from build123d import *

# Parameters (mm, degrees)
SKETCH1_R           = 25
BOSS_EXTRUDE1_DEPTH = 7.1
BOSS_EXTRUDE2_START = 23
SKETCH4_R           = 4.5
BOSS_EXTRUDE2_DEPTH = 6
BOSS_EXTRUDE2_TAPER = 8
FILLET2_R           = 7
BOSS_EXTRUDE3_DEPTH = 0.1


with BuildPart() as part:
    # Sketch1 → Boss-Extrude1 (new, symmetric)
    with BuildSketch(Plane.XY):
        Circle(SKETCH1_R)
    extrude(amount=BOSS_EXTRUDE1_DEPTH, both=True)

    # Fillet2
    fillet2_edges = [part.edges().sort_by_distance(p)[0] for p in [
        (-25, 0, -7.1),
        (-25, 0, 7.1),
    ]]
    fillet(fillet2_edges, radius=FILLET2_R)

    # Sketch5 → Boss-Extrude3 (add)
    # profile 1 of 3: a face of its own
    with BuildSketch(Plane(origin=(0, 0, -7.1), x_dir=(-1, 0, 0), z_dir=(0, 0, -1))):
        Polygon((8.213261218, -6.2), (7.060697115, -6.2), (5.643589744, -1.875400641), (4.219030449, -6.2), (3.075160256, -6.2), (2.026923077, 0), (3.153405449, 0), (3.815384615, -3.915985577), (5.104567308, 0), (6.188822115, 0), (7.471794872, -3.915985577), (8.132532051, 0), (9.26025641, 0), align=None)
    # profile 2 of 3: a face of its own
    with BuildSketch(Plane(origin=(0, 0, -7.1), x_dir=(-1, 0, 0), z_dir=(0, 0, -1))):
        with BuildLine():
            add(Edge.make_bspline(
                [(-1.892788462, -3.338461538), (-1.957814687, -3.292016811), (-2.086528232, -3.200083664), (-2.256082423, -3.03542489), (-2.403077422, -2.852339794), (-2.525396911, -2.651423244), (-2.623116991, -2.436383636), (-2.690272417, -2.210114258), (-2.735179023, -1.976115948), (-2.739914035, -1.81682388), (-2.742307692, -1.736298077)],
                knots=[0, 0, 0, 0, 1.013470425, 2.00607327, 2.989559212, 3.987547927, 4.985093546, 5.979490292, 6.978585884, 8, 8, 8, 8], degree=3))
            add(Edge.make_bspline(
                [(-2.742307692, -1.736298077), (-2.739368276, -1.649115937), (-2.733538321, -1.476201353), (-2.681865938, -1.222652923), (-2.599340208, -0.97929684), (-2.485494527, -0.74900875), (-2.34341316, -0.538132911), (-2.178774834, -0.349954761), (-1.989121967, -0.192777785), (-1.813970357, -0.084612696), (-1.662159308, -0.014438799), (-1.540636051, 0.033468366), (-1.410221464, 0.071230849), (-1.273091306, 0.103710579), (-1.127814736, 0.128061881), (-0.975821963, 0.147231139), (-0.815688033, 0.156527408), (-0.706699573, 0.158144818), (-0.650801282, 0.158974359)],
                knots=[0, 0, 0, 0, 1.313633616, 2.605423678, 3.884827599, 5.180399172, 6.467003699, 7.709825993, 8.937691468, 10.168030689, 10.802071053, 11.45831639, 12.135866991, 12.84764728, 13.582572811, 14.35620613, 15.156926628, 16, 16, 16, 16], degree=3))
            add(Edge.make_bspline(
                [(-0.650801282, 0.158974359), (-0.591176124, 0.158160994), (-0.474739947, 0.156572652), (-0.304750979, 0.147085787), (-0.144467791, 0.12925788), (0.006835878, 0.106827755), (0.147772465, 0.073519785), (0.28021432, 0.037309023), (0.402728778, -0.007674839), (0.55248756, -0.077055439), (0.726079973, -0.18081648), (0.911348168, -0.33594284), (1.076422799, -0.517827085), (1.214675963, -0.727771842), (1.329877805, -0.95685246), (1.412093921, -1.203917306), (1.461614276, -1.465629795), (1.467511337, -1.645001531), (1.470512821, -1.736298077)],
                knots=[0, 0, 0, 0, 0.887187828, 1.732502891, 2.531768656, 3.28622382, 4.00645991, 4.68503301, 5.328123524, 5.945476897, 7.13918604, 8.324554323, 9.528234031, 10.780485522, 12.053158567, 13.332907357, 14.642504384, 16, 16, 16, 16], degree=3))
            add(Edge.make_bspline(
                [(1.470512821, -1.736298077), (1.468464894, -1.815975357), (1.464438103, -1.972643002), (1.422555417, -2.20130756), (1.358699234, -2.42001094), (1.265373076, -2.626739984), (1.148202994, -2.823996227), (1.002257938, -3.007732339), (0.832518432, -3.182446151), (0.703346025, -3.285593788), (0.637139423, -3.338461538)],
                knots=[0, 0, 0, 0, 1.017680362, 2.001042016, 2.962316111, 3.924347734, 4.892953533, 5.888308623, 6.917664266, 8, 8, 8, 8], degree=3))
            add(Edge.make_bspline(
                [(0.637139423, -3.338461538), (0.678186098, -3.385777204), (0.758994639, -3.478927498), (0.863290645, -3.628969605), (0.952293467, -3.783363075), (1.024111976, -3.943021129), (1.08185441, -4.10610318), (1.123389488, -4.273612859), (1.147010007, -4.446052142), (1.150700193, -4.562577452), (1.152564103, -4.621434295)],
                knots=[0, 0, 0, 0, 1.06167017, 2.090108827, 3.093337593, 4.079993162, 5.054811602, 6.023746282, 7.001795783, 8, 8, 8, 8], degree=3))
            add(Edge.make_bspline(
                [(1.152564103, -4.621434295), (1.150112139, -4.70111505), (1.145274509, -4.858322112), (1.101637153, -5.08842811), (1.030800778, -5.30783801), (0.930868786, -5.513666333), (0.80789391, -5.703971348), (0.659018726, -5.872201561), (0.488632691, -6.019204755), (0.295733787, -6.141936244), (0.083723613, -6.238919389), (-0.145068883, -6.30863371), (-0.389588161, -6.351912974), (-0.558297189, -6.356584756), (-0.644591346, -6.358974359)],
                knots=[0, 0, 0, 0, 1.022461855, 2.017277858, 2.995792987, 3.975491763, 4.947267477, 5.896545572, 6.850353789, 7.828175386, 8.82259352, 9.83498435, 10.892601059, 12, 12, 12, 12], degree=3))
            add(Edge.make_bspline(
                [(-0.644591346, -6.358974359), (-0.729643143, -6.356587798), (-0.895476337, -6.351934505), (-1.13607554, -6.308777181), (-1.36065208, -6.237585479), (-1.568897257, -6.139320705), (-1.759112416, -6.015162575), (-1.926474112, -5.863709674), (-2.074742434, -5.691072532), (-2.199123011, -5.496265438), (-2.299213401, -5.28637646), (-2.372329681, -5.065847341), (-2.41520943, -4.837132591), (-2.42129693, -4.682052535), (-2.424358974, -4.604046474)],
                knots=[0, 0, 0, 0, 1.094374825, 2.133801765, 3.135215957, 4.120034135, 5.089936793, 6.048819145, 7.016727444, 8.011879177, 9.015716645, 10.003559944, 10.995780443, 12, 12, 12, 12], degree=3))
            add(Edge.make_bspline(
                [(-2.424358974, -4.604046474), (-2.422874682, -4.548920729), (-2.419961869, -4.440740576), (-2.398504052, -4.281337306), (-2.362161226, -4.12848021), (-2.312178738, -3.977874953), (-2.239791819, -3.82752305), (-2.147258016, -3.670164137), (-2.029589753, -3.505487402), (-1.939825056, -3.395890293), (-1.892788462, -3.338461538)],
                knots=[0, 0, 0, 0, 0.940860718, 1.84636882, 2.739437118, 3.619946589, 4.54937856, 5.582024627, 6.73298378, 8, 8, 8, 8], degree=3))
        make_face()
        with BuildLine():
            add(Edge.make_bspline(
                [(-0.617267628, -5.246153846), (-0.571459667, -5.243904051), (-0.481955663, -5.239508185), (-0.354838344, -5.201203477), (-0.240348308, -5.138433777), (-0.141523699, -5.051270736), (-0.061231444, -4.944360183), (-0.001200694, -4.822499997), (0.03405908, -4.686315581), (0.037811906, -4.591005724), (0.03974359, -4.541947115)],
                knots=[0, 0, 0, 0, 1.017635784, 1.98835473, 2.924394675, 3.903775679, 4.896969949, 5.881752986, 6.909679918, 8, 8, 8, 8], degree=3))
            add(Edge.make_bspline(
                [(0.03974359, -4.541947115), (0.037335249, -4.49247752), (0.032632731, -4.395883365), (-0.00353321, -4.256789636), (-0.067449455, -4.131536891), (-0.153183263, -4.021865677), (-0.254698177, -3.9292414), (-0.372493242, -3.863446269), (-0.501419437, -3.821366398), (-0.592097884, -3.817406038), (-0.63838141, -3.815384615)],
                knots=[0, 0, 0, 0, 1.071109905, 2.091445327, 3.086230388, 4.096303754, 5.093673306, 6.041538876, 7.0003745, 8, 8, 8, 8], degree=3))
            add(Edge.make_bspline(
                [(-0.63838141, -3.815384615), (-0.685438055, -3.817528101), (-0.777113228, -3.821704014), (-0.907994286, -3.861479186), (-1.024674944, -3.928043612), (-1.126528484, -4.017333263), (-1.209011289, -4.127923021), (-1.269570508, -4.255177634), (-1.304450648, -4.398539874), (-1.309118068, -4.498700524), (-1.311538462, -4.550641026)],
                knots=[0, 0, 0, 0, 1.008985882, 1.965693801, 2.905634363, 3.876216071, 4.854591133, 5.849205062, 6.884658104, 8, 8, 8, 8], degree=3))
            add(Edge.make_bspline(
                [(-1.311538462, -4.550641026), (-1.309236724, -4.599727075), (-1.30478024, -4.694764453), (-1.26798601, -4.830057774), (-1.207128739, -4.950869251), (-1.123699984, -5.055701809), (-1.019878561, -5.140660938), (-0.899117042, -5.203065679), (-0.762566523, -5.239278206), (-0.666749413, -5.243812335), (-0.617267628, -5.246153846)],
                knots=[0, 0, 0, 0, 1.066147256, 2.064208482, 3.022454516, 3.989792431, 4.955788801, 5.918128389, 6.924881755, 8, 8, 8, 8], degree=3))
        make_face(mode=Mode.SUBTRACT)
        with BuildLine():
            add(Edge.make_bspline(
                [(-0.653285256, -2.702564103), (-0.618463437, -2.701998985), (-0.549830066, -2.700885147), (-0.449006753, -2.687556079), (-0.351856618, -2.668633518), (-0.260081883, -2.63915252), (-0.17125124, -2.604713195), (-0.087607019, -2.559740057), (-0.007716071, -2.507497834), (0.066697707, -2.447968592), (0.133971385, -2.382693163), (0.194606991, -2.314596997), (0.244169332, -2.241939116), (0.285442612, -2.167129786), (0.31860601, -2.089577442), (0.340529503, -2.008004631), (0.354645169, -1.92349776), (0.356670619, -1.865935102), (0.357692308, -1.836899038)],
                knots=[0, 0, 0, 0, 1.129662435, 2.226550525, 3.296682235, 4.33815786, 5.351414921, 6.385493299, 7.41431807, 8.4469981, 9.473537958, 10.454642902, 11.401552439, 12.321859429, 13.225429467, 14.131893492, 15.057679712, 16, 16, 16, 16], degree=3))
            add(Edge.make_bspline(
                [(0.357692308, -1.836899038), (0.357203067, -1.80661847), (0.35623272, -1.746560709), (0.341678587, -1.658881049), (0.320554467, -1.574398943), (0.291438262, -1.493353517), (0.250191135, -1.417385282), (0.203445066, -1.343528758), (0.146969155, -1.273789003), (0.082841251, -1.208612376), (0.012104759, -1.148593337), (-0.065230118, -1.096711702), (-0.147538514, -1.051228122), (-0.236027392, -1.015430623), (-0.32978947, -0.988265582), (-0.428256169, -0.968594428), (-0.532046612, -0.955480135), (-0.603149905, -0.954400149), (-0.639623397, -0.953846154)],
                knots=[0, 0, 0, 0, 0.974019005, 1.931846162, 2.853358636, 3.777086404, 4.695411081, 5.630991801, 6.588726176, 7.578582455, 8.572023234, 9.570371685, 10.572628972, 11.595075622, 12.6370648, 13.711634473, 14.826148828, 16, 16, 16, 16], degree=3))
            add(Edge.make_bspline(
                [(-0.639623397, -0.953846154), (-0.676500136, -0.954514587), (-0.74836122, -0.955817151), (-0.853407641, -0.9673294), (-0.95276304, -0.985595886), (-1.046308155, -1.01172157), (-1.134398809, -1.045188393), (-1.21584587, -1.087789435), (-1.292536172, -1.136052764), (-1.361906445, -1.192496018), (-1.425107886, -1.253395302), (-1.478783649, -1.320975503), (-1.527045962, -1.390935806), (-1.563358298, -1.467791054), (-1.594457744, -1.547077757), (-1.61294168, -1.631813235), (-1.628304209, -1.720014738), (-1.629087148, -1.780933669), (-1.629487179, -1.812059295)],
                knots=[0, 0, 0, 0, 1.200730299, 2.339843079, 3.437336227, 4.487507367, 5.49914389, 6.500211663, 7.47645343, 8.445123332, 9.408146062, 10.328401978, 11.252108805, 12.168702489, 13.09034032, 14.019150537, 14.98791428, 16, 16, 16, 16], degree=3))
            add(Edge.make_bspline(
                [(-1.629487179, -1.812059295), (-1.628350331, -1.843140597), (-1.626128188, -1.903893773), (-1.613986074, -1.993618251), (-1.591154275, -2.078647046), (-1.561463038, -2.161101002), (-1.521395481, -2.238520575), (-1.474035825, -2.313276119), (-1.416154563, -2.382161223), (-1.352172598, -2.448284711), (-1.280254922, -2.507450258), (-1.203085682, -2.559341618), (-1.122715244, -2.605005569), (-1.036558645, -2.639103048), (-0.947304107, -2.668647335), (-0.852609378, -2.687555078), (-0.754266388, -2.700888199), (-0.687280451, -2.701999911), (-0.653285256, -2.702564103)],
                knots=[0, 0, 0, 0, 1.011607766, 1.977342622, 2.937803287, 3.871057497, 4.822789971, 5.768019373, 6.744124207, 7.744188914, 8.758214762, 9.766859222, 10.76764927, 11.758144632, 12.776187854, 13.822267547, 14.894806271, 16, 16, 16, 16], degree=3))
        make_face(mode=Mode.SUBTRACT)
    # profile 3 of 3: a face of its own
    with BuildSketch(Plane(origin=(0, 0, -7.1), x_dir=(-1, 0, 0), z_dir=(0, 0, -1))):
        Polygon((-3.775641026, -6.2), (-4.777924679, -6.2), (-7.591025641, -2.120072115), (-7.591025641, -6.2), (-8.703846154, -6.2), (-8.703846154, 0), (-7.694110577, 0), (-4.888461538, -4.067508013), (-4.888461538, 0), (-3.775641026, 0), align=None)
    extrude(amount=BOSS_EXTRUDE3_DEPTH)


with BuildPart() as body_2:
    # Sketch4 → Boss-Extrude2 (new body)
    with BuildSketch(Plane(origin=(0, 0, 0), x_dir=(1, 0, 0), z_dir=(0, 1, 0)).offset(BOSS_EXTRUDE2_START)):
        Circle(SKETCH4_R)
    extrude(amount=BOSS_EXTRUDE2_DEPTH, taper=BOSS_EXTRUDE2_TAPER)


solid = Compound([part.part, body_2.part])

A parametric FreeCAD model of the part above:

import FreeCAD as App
import Part
import Sketcher


def edges_at(feature, points):
    """Names of the edges that pass closest to the given points."""
    edges = feature.Shape.Edges
    near = lambda p: min(range(len(edges)), key=lambda i: edges[i].distToShape(Part.Vertex(*p))[0])
    return sorted({f"Edge{near(p) + 1}" for p in points})


def add_polygon(sketch, points):
    """Adds a closed chain of lines whose ends are joined by coincident constraints."""
    first, n = sketch.GeometryCount, len(points)
    for a, b in zip(points, points[1:] + points[:1]):
        sketch.addGeometry(Part.LineSegment(App.Vector(*a, 0), App.Vector(*b, 0)), False)
    for i in range(n):
        sketch.addConstraint(Sketcher.Constraint("Coincident", first + i, 2, first + (i + 1) % n, 1))

doc = App.newDocument("Part")
body = doc.addObject("PartDesign::Body", "Body")

sketch1 = body.newObject("Sketcher::SketchObject", "Sketch")
sketch1.AttachmentSupport = (doc.getObject("XY_Plane"), [""])
sketch1.MapMode = "FlatFace"
sketch1.addGeometry(Part.Circle(App.Vector(0, 0, 0), App.Vector(0, 0, 1), 25), False)
sketch1.addConstraint([
    Sketcher.Constraint("Coincident", 0, 3, -1, 1),
    Sketcher.Constraint("Diameter", 0, 50.0),
])
pad1 = body.newObject("PartDesign::Pad", "Pad")
pad1.Profile = sketch1
pad1.Length = 14.2
pad1.Midplane = True
doc.recompute()

fillet = body.newObject("PartDesign::Fillet", "Fillet")
fillet.Base = (pad1, edges_at(pad1, [(-25, 0, -7.1), (-25, 0, 7.1)]))
fillet.Radius = 7

sketch2 = body.newObject("Sketcher::SketchObject", "Sketch001")
sketch2.AttachmentSupport = (doc.getObject("XY_Plane"), [""])
sketch2.MapMode = "FlatFace"
sketch2.AttachmentOffset = App.Placement(App.Vector(0, 0, -7.1), App.Rotation())
add_polygon(sketch2, [(-7.060697, -6.2), (-8.213261, -6.2), (-9.260256, 0), (-8.132532, 0), (-7.471795, -3.915986), (-6.188822, 0), (-5.104567, 0), (-3.815385, -3.915986), (-3.153405, 0), (-2.026923, 0), (-3.07516, -6.2), (-4.21903, -6.2), (-5.64359, -1.875401)])
sketch2.addGeometry(Part.BSplineCurve([App.Vector(1.892788, -3.338462, 0), App.Vector(1.957815, -3.292017, 0), App.Vector(2.086528, -3.200084, 0), App.Vector(2.256082, -3.035425, 0), App.Vector(2.403077, -2.85234, 0), App.Vector(2.525397, -2.651423, 0), App.Vector(2.623117, -2.436384, 0), App.Vector(2.690272, -2.210114, 0), App.Vector(2.735179, -1.976116, 0), App.Vector(2.739914, -1.816824, 0), App.Vector(2.742308, -1.736298, 0)], [4, 1, 1, 1, 1, 1, 1, 1, 4], [0, 1.013470425, 2.00607327, 2.989559212, 3.987547927, 4.985093546, 5.979490292, 6.978585884, 8], False, 3, [1, 1, 1, 1, 1, 1, 1, 1, 1, 1, 1], False), False)
sketch2.addGeometry(Part.BSplineCurve([App.Vector(2.424359, -4.604046, 0), App.Vector(2.422875, -4.548921, 0), App.Vector(2.419962, -4.440741, 0), App.Vector(2.398504, -4.281337, 0), App.Vector(2.362161, -4.12848, 0), App.Vector(2.312179, -3.977875, 0), App.Vector(2.239792, -3.827523, 0), App.Vector(2.147258, -3.670164, 0), App.Vector(2.02959, -3.505487, 0), App.Vector(1.939825, -3.39589, 0), App.Vector(1.892788, -3.338462, 0)], [4, 1, 1, 1, 1, 1, 1, 1, 4], [0, 0.940860718, 1.84636882, 2.739437118, 3.619946589, 4.54937856, 5.582024627, 6.73298378, 8], False, 3, [1, 1, 1, 1, 1, 1, 1, 1, 1, 1, 1], False), False)
sketch2.addGeometry(Part.BSplineCurve([App.Vector(0.644591, -6.358974, 0), App.Vector(0.729643, -6.356588, 0), App.Vector(0.895476, -6.351935, 0), App.Vector(1.136076, -6.308777, 0), App.Vector(1.360652, -6.237585, 0), App.Vector(1.568897, -6.139321, 0), App.Vector(1.759112, -6.015163, 0), App.Vector(1.926474, -5.86371, 0), App.Vector(2.074742, -5.691073, 0), App.Vector(2.199123, -5.496265, 0), App.Vector(2.299213, -5.286376, 0), App.Vector(2.37233, -5.065847, 0), App.Vector(2.415209, -4.837133, 0), App.Vector(2.421297, -4.682053, 0), App.Vector(2.424359, -4.604046, 0)], [4, 1, 1, 1, 1, 1, 1, 1, 1, 1, 1, 1, 4], [0, 1.094374825, 2.133801765, 3.135215957, 4.120034135, 5.089936793, 6.048819145, 7.016727444, 8.011879177, 9.015716645, 10.003559944, 10.995780443, 12], False, 3, [1, 1, 1, 1, 1, 1, 1, 1, 1, 1, 1, 1, 1, 1, 1], False), False)
sketch2.addGeometry(Part.BSplineCurve([App.Vector(-1.152564, -4.621434, 0), App.Vector(-1.150112, -4.701115, 0), App.Vector(-1.145275, -4.858322, 0), App.Vector(-1.101637, -5.088428, 0), App.Vector(-1.030801, -5.307838, 0), App.Vector(-0.930869, -5.513666, 0), App.Vector(-0.807894, -5.703971, 0), App.Vector(-0.659019, -5.872202, 0), App.Vector(-0.488633, -6.019205, 0), App.Vector(-0.295734, -6.141936, 0), App.Vector(-0.083724, -6.238919, 0), App.Vector(0.145069, -6.308634, 0), App.Vector(0.389588, -6.351913, 0), App.Vector(0.558297, -6.356585, 0), App.Vector(0.644591, -6.358974, 0)], [4, 1, 1, 1, 1, 1, 1, 1, 1, 1, 1, 1, 4], [0, 1.022461855, 2.017277858, 2.995792987, 3.975491763, 4.947267477, 5.896545572, 6.850353789, 7.828175386, 8.82259352, 9.83498435, 10.892601059, 12], False, 3, [1, 1, 1, 1, 1, 1, 1, 1, 1, 1, 1, 1, 1, 1, 1], False), False)
sketch2.addGeometry(Part.BSplineCurve([App.Vector(-0.637139, -3.338462, 0), App.Vector(-0.678186, -3.385777, 0), App.Vector(-0.758995, -3.478927, 0), App.Vector(-0.863291, -3.62897, 0), App.Vector(-0.952293, -3.783363, 0), App.Vector(-1.024112, -3.943021, 0), App.Vector(-1.081854, -4.106103, 0), App.Vector(-1.123389, -4.273613, 0), App.Vector(-1.14701, -4.446052, 0), App.Vector(-1.1507, -4.562577, 0), App.Vector(-1.152564, -4.621434, 0)], [4, 1, 1, 1, 1, 1, 1, 1, 4], [0, 1.06167017, 2.090108827, 3.093337593, 4.079993162, 5.054811602, 6.023746282, 7.001795783, 8], False, 3, [1, 1, 1, 1, 1, 1, 1, 1, 1, 1, 1], False), False)
sketch2.addGeometry(Part.BSplineCurve([App.Vector(-1.470513, -1.736298, 0), App.Vector(-1.468465, -1.815975, 0), App.Vector(-1.464438, -1.972643, 0), App.Vector(-1.422555, -2.201308, 0), App.Vector(-1.358699, -2.420011, 0), App.Vector(-1.265373, -2.62674, 0), App.Vector(-1.148203, -2.823996, 0), App.Vector(-1.002258, -3.007732, 0), App.Vector(-0.832518, -3.182446, 0), App.Vector(-0.703346, -3.285594, 0), App.Vector(-0.637139, -3.338462, 0)], [4, 1, 1, 1, 1, 1, 1, 1, 4], [0, 1.017680362, 2.001042016, 2.962316111, 3.924347734, 4.892953533, 5.888308623, 6.917664266, 8], False, 3, [1, 1, 1, 1, 1, 1, 1, 1, 1, 1, 1], False), False)
sketch2.addGeometry(Part.BSplineCurve([App.Vector(0.650801, 0.158974, 0), App.Vector(0.591176, 0.158161, 0), App.Vector(0.47474, 0.156573, 0), App.Vector(0.304751, 0.147086, 0), App.Vector(0.144468, 0.129258, 0), App.Vector(-0.006836, 0.106828, 0), App.Vector(-0.147772, 0.07352, 0), App.Vector(-0.280214, 0.037309, 0), App.Vector(-0.402729, -0.007675, 0), App.Vector(-0.552488, -0.077055, 0), App.Vector(-0.72608, -0.180816, 0), App.Vector(-0.911348, -0.335943, 0), App.Vector(-1.076423, -0.517827, 0), App.Vector(-1.214676, -0.727772, 0), App.Vector(-1.329878, -0.956852, 0), App.Vector(-1.412094, -1.203917, 0), App.Vector(-1.461614, -1.46563, 0), App.Vector(-1.467511, -1.645002, 0), App.Vector(-1.470513, -1.736298, 0)], [4, 1, 1, 1, 1, 1, 1, 1, 1, 1, 1, 1, 1, 1, 1, 1, 4], [0, 0.887187828, 1.732502891, 2.531768656, 3.28622382, 4.00645991, 4.68503301, 5.328123524, 5.945476897, 7.13918604, 8.324554323, 9.528234031, 10.780485522, 12.053158567, 13.332907357, 14.642504384, 16], False, 3, [1, 1, 1, 1, 1, 1, 1, 1, 1, 1, 1, 1, 1, 1, 1, 1, 1, 1, 1], False), False)
sketch2.addGeometry(Part.BSplineCurve([App.Vector(2.742308, -1.736298, 0), App.Vector(2.739368, -1.649116, 0), App.Vector(2.733538, -1.476201, 0), App.Vector(2.681866, -1.222653, 0), App.Vector(2.59934, -0.979297, 0), App.Vector(2.485495, -0.749009, 0), App.Vector(2.343413, -0.538133, 0), App.Vector(2.178775, -0.349955, 0), App.Vector(1.989122, -0.192778, 0), App.Vector(1.81397, -0.084613, 0), App.Vector(1.662159, -0.014439, 0), App.Vector(1.540636, 0.033468, 0), App.Vector(1.410221, 0.071231, 0), App.Vector(1.273091, 0.103711, 0), App.Vector(1.127815, 0.128062, 0), App.Vector(0.975822, 0.147231, 0), App.Vector(0.815688, 0.156527, 0), App.Vector(0.7067, 0.158145, 0), App.Vector(0.650801, 0.158974, 0)], [4, 1, 1, 1, 1, 1, 1, 1, 1, 1, 1, 1, 1, 1, 1, 1, 4], [0, 1.313633616, 2.605423678, 3.884827599, 5.180399172, 6.467003699, 7.709825993, 8.937691468, 10.168030689, 10.802071053, 11.45831639, 12.135866991, 12.84764728, 13.582572811, 14.35620613, 15.156926628, 16], False, 3, [1, 1, 1, 1, 1, 1, 1, 1, 1, 1, 1, 1, 1, 1, 1, 1, 1, 1, 1], False), False)
sketch2.addGeometry(Part.BSplineCurve([App.Vector(1.311538, -4.550641, 0), App.Vector(1.309237, -4.599727, 0), App.Vector(1.30478, -4.694764, 0), App.Vector(1.267986, -4.830058, 0), App.Vector(1.207129, -4.950869, 0), App.Vector(1.1237, -5.055702, 0), App.Vector(1.019879, -5.140661, 0), App.Vector(0.899117, -5.203066, 0), App.Vector(0.762567, -5.239278, 0), App.Vector(0.666749, -5.243812, 0), App.Vector(0.617268, -5.246154, 0)], [4, 1, 1, 1, 1, 1, 1, 1, 4], [0, 1.066147256, 2.064208482, 3.022454516, 3.989792431, 4.955788801, 5.918128389, 6.924881755, 8], False, 3, [1, 1, 1, 1, 1, 1, 1, 1, 1, 1, 1], False), False)
sketch2.addGeometry(Part.BSplineCurve([App.Vector(0.638381, -3.815385, 0), App.Vector(0.685438, -3.817528, 0), App.Vector(0.777113, -3.821704, 0), App.Vector(0.907994, -3.861479, 0), App.Vector(1.024675, -3.928044, 0), App.Vector(1.126528, -4.017333, 0), App.Vector(1.209011, -4.127923, 0), App.Vector(1.269571, -4.255178, 0), App.Vector(1.304451, -4.39854, 0), App.Vector(1.309118, -4.498701, 0), App.Vector(1.311538, -4.550641, 0)], [4, 1, 1, 1, 1, 1, 1, 1, 4], [0, 1.008985882, 1.965693801, 2.905634363, 3.876216071, 4.854591133, 5.849205062, 6.884658104, 8], False, 3, [1, 1, 1, 1, 1, 1, 1, 1, 1, 1, 1], False), False)
sketch2.addGeometry(Part.BSplineCurve([App.Vector(-0.039744, -4.541947, 0), App.Vector(-0.037335, -4.492478, 0), App.Vector(-0.032633, -4.395883, 0), App.Vector(0.003533, -4.25679, 0), App.Vector(0.067449, -4.131537, 0), App.Vector(0.153183, -4.021866, 0), App.Vector(0.254698, -3.929241, 0), App.Vector(0.372493, -3.863446, 0), App.Vector(0.501419, -3.821366, 0), App.Vector(0.592098, -3.817406, 0), App.Vector(0.638381, -3.815385, 0)], [4, 1, 1, 1, 1, 1, 1, 1, 4], [0, 1.071109905, 2.091445327, 3.086230388, 4.096303754, 5.093673306, 6.041538876, 7.0003745, 8], False, 3, [1, 1, 1, 1, 1, 1, 1, 1, 1, 1, 1], False), False)
sketch2.addGeometry(Part.BSplineCurve([App.Vector(0.617268, -5.246154, 0), App.Vector(0.57146, -5.243904, 0), App.Vector(0.481956, -5.239508, 0), App.Vector(0.354838, -5.201203, 0), App.Vector(0.240348, -5.138434, 0), App.Vector(0.141524, -5.051271, 0), App.Vector(0.061231, -4.94436, 0), App.Vector(0.001201, -4.8225, 0), App.Vector(-0.034059, -4.686316, 0), App.Vector(-0.037812, -4.591006, 0), App.Vector(-0.039744, -4.541947, 0)], [4, 1, 1, 1, 1, 1, 1, 1, 4], [0, 1.017635784, 1.98835473, 2.924394675, 3.903775679, 4.896969949, 5.881752986, 6.909679918, 8], False, 3, [1, 1, 1, 1, 1, 1, 1, 1, 1, 1, 1], False), False)
sketch2.addGeometry(Part.BSplineCurve([App.Vector(1.629487, -1.812059, 0), App.Vector(1.62835, -1.843141, 0), App.Vector(1.626128, -1.903894, 0), App.Vector(1.613986, -1.993618, 0), App.Vector(1.591154, -2.078647, 0), App.Vector(1.561463, -2.161101, 0), App.Vector(1.521395, -2.238521, 0), App.Vector(1.474036, -2.313276, 0), App.Vector(1.416155, -2.382161, 0), App.Vector(1.352173, -2.448285, 0), App.Vector(1.280255, -2.50745, 0), App.Vector(1.203086, -2.559342, 0), App.Vector(1.122715, -2.605006, 0), App.Vector(1.036559, -2.639103, 0), App.Vector(0.947304, -2.668647, 0), App.Vector(0.852609, -2.687555, 0), App.Vector(0.754266, -2.700888, 0), App.Vector(0.68728, -2.702, 0), App.Vector(0.653285, -2.702564, 0)], [4, 1, 1, 1, 1, 1, 1, 1, 1, 1, 1, 1, 1, 1, 1, 1, 4], [0, 1.011607766, 1.977342622, 2.937803287, 3.871057497, 4.822789971, 5.768019373, 6.744124207, 7.744188914, 8.758214762, 9.766859222, 10.76764927, 11.758144632, 12.776187854, 13.822267547, 14.894806271, 16], False, 3, [1, 1, 1, 1, 1, 1, 1, 1, 1, 1, 1, 1, 1, 1, 1, 1, 1, 1, 1], False), False)
sketch2.addGeometry(Part.BSplineCurve([App.Vector(0.639623, -0.953846, 0), App.Vector(0.6765, -0.954515, 0), App.Vector(0.748361, -0.955817, 0), App.Vector(0.853408, -0.967329, 0), App.Vector(0.952763, -0.985596, 0), App.Vector(1.046308, -1.011722, 0), App.Vector(1.134399, -1.045188, 0), App.Vector(1.215846, -1.087789, 0), App.Vector(1.292536, -1.136053, 0), App.Vector(1.361906, -1.192496, 0), App.Vector(1.425108, -1.253395, 0), App.Vector(1.478784, -1.320976, 0), App.Vector(1.527046, -1.390936, 0), App.Vector(1.563358, -1.467791, 0), App.Vector(1.594458, -1.547078, 0), App.Vector(1.612942, -1.631813, 0), App.Vector(1.628304, -1.720015, 0), App.Vector(1.629087, -1.780934, 0), App.Vector(1.629487, -1.812059, 0)], [4, 1, 1, 1, 1, 1, 1, 1, 1, 1, 1, 1, 1, 1, 1, 1, 4], [0, 1.200730299, 2.339843079, 3.437336227, 4.487507367, 5.49914389, 6.500211663, 7.47645343, 8.445123332, 9.408146062, 10.328401978, 11.252108805, 12.168702489, 13.09034032, 14.019150537, 14.98791428, 16], False, 3, [1, 1, 1, 1, 1, 1, 1, 1, 1, 1, 1, 1, 1, 1, 1, 1, 1, 1, 1], False), False)
sketch2.addGeometry(Part.BSplineCurve([App.Vector(-0.357692, -1.836899, 0), App.Vector(-0.357203, -1.806618, 0), App.Vector(-0.356233, -1.746561, 0), App.Vector(-0.341679, -1.658881, 0), App.Vector(-0.320554, -1.574399, 0), App.Vector(-0.291438, -1.493354, 0), App.Vector(-0.250191, -1.417385, 0), App.Vector(-0.203445, -1.343529, 0), App.Vector(-0.146969, -1.273789, 0), App.Vector(-0.082841, -1.208612, 0), App.Vector(-0.012105, -1.148593, 0), App.Vector(0.06523, -1.096712, 0), App.Vector(0.147539, -1.051228, 0), App.Vector(0.236027, -1.015431, 0), App.Vector(0.329789, -0.988266, 0), App.Vector(0.428256, -0.968594, 0), App.Vector(0.532047, -0.95548, 0), App.Vector(0.60315, -0.9544, 0), App.Vector(0.639623, -0.953846, 0)], [4, 1, 1, 1, 1, 1, 1, 1, 1, 1, 1, 1, 1, 1, 1, 1, 4], [0, 0.974019005, 1.931846162, 2.853358636, 3.777086404, 4.695411081, 5.630991801, 6.588726176, 7.578582455, 8.572023234, 9.570371685, 10.572628972, 11.595075622, 12.6370648, 13.711634473, 14.826148828, 16], False, 3, [1, 1, 1, 1, 1, 1, 1, 1, 1, 1, 1, 1, 1, 1, 1, 1, 1, 1, 1], False), False)
sketch2.addGeometry(Part.BSplineCurve([App.Vector(0.653285, -2.702564, 0), App.Vector(0.618463, -2.701999, 0), App.Vector(0.54983, -2.700885, 0), App.Vector(0.449007, -2.687556, 0), App.Vector(0.351857, -2.668634, 0), App.Vector(0.260082, -2.639153, 0), App.Vector(0.171251, -2.604713, 0), App.Vector(0.087607, -2.55974, 0), App.Vector(0.007716, -2.507498, 0), App.Vector(-0.066698, -2.447969, 0), App.Vector(-0.133971, -2.382693, 0), App.Vector(-0.194607, -2.314597, 0), App.Vector(-0.244169, -2.241939, 0), App.Vector(-0.285443, -2.16713, 0), App.Vector(-0.318606, -2.089577, 0), App.Vector(-0.34053, -2.008005, 0), App.Vector(-0.354645, -1.923498, 0), App.Vector(-0.356671, -1.865935, 0), App.Vector(-0.357692, -1.836899, 0)], [4, 1, 1, 1, 1, 1, 1, 1, 1, 1, 1, 1, 1, 1, 1, 1, 4], [0, 1.129662435, 2.226550525, 3.296682235, 4.33815786, 5.351414921, 6.385493299, 7.41431807, 8.4469981, 9.473537958, 10.454642902, 11.401552439, 12.321859429, 13.225429467, 14.131893492, 15.057679712, 16], False, 3, [1, 1, 1, 1, 1, 1, 1, 1, 1, 1, 1, 1, 1, 1, 1, 1, 1, 1, 1], False), False)
add_polygon(sketch2, [(4.777925, -6.2), (3.775641, -6.2), (3.775641, 0), (4.888462, 0), (4.888462, -4.067508), (7.694111, 0), (8.703846, 0), (8.703846, -6.2), (7.591026, -6.2), (7.591026, -2.120072)])
sketch2.addConstraint([
    Sketcher.Constraint("Block", 13),
    Sketcher.Constraint("Block", 14),
    Sketcher.Constraint("Block", 15),
    Sketcher.Constraint("Block", 16),
    Sketcher.Constraint("Block", 17),
    Sketcher.Constraint("Block", 18),
    Sketcher.Constraint("Block", 19),
    Sketcher.Constraint("Block", 20),
    Sketcher.Constraint("Block", 21),
    Sketcher.Constraint("Block", 22),
    Sketcher.Constraint("Block", 23),
    Sketcher.Constraint("Block", 24),
    Sketcher.Constraint("Block", 25),
    Sketcher.Constraint("Block", 26),
    Sketcher.Constraint("Block", 27),
    Sketcher.Constraint("Block", 28),
    Sketcher.Constraint("Horizontal", 0),
    Sketcher.Constraint("Horizontal", 2),
    Sketcher.Constraint("Horizontal", 5),
    Sketcher.Constraint("Horizontal", 8),
    Sketcher.Constraint("Horizontal", 10),
    Sketcher.Constraint("Horizontal", 29),
    Sketcher.Constraint("Vertical", 30),
    Sketcher.Constraint("Horizontal", 31),
    Sketcher.Constraint("Vertical", 32),
    Sketcher.Constraint("Horizontal", 34),
    Sketcher.Constraint("Vertical", 35),
    Sketcher.Constraint("Horizontal", 36),
    Sketcher.Constraint("Vertical", 37),
    Sketcher.Constraint("PointOnObject", 1, 2, -1),
    Sketcher.Constraint("PointOnObject", 4, 2, -1),
    Sketcher.Constraint("PointOnObject", 7, 2, -1),
    Sketcher.Constraint("PointOnObject", 30, 2, -1),
    Sketcher.Constraint("PointOnObject", 33, 2, -1),
    Sketcher.Constraint("Horizontal", 3, 2, 6, 2),
    Sketcher.Constraint("Horizontal", 0, 2, 9, 2),
    Sketcher.Constraint("Horizontal", 12, 2, 29, 2),
    Sketcher.Constraint("Horizontal", 29, 2, 35, 2),
    Sketcher.Constraint("Equal", 31, 36),
    Sketcher.Constraint("DistanceY", 30, 1, 30, 2, 6.2),
    Sketcher.Constraint("DistanceX", 10, 2, 10, 1, 1.14387),
    Sketcher.Constraint("DistanceX", 31, 1, 31, 2, 1.112821),
    Sketcher.Constraint("DistanceY", 32, 2, 32, 1, 4.067508),
    Sketcher.Constraint("DistanceY", 11, 2, -1, 1, 1.875401),
    Sketcher.Constraint("DistanceX", 4, 2, 8, 2, 4.161899),
    Sketcher.Constraint("DistanceX", 0, 2, 9, 2, 5.138101),
    Sketcher.Constraint("DistanceX", 9, 2, 29, 2, 6.850801),
    Sketcher.Constraint("DistanceX", 38, 2, 36, 2, 2.813101),
    Sketcher.Constraint("Distance", 1, 6.287782),
    Sketcher.Constraint("Distance", 9, 6.287989),
    Sketcher.Constraint("Distance", 11, 4.553189),
    Sketcher.Constraint("Distance", 38, 4.955739),
    Sketcher.Constraint("DistanceX", 0, 2, 0, 1, 1.152564),
    Sketcher.Constraint("DistanceX", 2, 1, 2, 2, 1.127724),
    Sketcher.Constraint("DistanceX", 5, 1, 5, 2, 1.084255),
    Sketcher.Constraint("DistanceX", 8, 1, 8, 2, 1.126482),
    Sketcher.Constraint("DistanceX", 29, 2, 29, 1, 1.002284),
    Sketcher.Constraint("DistanceX", 34, 1, 34, 2, 1.009736),
    Sketcher.Constraint("DistanceX", 0, 2, -1, 1, 8.213261),
    Sketcher.Constraint("DistanceX", 1, 2, 3, 2, 1.788462),
    Sketcher.Constraint("DistanceX", 3, 2, 6, 2, 3.65641),
    Sketcher.Constraint("Distance", 3, 3.971337),
])
pad2 = body.newObject("PartDesign::Pad", "Pad001")
pad2.Profile = sketch2
pad2.Length = 0.1
pad2.Reversed = True
body2 = doc.addObject("PartDesign::Body", "Body001")

sketch3 = body2.newObject("Sketcher::SketchObject", "Sketch002")
sketch3.AttachmentSupport = (doc.getObject("XZ_Plane001"), [""])
sketch3.MapMode = "FlatFace"
sketch3.AttachmentOffset = App.Placement(App.Vector(0, 0, -23), App.Rotation())
sketch3.addGeometry(Part.Circle(App.Vector(0, 0, 0), App.Vector(0, 0, 1), 4.5), False)
sketch3.addConstraint([
    Sketcher.Constraint("Coincident", 0, 3, -1, 1),
    Sketcher.Constraint("Diameter", 0, 9.0),
])
pad3 = body2.newObject("PartDesign::Pad", "Pad002")
pad3.Profile = sketch3
pad3.Length = 6
pad3.Reversed = True
pad3.TaperAngle = -8

doc.recompute()
